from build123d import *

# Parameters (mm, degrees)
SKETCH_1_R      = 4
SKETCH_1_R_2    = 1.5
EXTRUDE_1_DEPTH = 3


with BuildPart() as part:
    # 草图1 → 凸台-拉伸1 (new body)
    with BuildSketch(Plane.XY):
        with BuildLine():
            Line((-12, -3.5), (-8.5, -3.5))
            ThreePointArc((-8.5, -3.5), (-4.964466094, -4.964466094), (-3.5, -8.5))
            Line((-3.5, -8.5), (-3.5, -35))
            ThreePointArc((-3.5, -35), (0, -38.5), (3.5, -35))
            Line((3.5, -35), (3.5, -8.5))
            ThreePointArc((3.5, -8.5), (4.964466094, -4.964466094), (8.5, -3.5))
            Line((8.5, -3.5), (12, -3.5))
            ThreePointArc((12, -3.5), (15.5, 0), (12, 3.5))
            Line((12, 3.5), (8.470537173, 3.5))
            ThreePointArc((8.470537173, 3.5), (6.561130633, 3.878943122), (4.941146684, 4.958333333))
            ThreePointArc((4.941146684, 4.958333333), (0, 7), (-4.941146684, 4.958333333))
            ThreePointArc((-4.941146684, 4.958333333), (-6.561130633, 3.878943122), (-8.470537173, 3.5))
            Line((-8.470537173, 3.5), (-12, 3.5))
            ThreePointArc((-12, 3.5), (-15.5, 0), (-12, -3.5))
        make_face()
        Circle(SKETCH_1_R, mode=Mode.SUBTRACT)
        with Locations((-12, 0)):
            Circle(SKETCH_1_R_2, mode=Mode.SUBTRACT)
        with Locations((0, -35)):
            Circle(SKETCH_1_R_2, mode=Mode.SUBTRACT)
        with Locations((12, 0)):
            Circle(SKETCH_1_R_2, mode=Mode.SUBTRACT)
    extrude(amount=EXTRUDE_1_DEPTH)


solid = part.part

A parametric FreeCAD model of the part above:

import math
import FreeCAD as App
import Part
import Sketcher
from FreeCAD import Vector

doc = App.newDocument("Part")
body = doc.addObject("PartDesign::Body", "Body")

# Sketch on XY plane
sketch1 = body.newObject("Sketcher::SketchObject", "Sketch")
sketch1.AttachmentSupport = (doc.getObject("XY_Plane"), [""])
sketch1.MapMode = "FlatFace"
sketch1.addGeometry([
    Part.LineSegment(Vector(-12, -3.5, 0), Vector(-8.5, -3.5, 0)),  # 0
    Part.ArcOfCircle(Part.Circle(Vector(-8.5, -8.5, 0), Vector(0, 0, 1), 5), math.radians(0), math.radians(90)),  # 1
    Part.LineSegment(Vector(-3.5, -8.5, 0), Vector(-3.5, -35, 0)),  # 2
    Part.ArcOfCircle(Part.Circle(Vector(0, -35, 0), Vector(0, 0, 1), 3.5), math.radians(180), math.radians(360)),  # 3
    Part.LineSegment(Vector(3.5, -35, 0), Vector(3.5, -8.5, 0)),  # 4
    Part.ArcOfCircle(Part.Circle(Vector(8.5, -8.5, 0), Vector(0, 0, 1), 5), math.radians(90), math.radians(180)),  # 5
    Part.LineSegment(Vector(8.5, -3.5, 0), Vector(12, -3.5, 0)),  # 6
    Part.ArcOfCircle(Part.Circle(Vector(12, 0, 0), Vector(0, 0, 1), 3.5), math.radians(-90), math.radians(90)),  # 7
    Part.LineSegment(Vector(12, 3.5, 0), Vector(8.5, 3.5, 0)),  # 8
    Part.ArcOfCircle(Part.Circle(Vector(8.5, 8.5, 0), Vector(0, 0, 1), 5), math.radians(-135), math.radians(-90)),  # 9
    Part.ArcOfCircle(Part.Circle(Vector(0, 0, 0), Vector(0, 0, 1), 7), math.radians(45), math.radians(135)),  # 10
    Part.ArcOfCircle(Part.Circle(Vector(-8.5, 8.5, 0), Vector(0, 0, 1), 5), math.radians(-90), math.radians(-45)),  # 11
    Part.LineSegment(Vector(-8.5, 3.5, 0), Vector(-12, 3.5, 0)),  # 12
    Part.ArcOfCircle(Part.Circle(Vector(-12, 0, 0), Vector(0, 0, 1), 3.5), math.radians(90), math.radians(270)),  # 13
    Part.Circle(Vector(0, -35, 0), Vector(0, 0, 1), 1.5),  # 14
    Part.Circle(Vector(-12, 0, 0), Vector(0, 0, 1), 1.5),  # 15
    Part.Circle(Vector(0, 0, 0), Vector(0, 0, 1), 4),  # 16
    Part.Circle(Vector(12, 0, 0), Vector(0, 0, 1), 1.5),  # 17
], False)
sketch1.addConstraint([
    Sketcher.Constraint("Tangent", 0, 2, 1, 2),
    Sketcher.Constraint("Tangent", 1, 1, 2, 1),
    Sketcher.Constraint("Tangent", 2, 2, 3, 1),
    Sketcher.Constraint("Tangent", 3, 2, 4, 1),
    Sketcher.Constraint("Tangent", 4, 2, 5, 2),
    Sketcher.Constraint("Tangent", 5, 1, 6, 1),
    Sketcher.Constraint("Tangent", 6, 2, 7, 1),
    Sketcher.Constraint("Tangent", 7, 2, 8, 1),
    Sketcher.Constraint("Tangent", 8, 2, 9, 2),
    Sketcher.Constraint("Tangent", 9, 1, 10, 1),
    Sketcher.Constraint("Tangent", 10, 2, 11, 2),
    Sketcher.Constraint("Tangent", 11, 1, 12, 1),
    Sketcher.Constraint("Tangent", 12, 2, 13, 1),
    Sketcher.Constraint("Tangent", 13, 2, 0, 1),
    Sketcher.Constraint("Horizontal", 0),
    Sketcher.Constraint("Vertical", 2),
    Sketcher.Constraint("Vertical", 4),
    Sketcher.Constraint("Horizontal", 6),
    Sketcher.Constraint("Horizontal", 8),
    Sketcher.Constraint("Horizontal", 12),
    Sketcher.Constraint("Coincident", 10, 3, -1, 1),
    Sketcher.Constraint("Coincident", 16, 3, -1, 1),
    Sketcher.Constraint("Coincident", 14, 3, 3, 3),
    Sketcher.Constraint("Coincident", 15, 3, 13, 3),
    Sketcher.Constraint("Coincident", 17, 3, 7, 3),
    Sketcher.Constraint("Equal", 1, 5),
    Sketcher.Constraint("Equal", 3, 7),
    Sketcher.Constraint("Equal", 5, 9),
    Sketcher.Constraint("Equal", 9, 11),
    Sketcher.Constraint("Equal", 7, 13),
    Sketcher.Constraint("Equal", 14, 15),
    Sketcher.Constraint("Equal", 15, 17),
    Sketcher.Constraint("Symmetric", 7, 3, 13, 3, -1, 1),
    Sketcher.Constraint("Symmetric", 1, 3, 5, 3, -2),
    Sketcher.Constraint("Diameter", 14, 3.0),
    Sketcher.Constraint("Diameter", 16, 8.0),
    Sketcher.Constraint("Radius", 1, 5.0),
    Sketcher.Constraint("Radius", 10, 7.0),
    Sketcher.Constraint("Radius", 3, 3.5),
    Sketcher.Constraint("DistanceX", 0, 1, 0, 2, 3.5),
    Sketcher.Constraint("DistanceY", 2, 2, 2, 1, 26.5),
])
pad1 = body.newObject("PartDesign::Pad", "Pad")
pad1.Profile = sketch1
pad1.Length = 3

doc.recompute()
